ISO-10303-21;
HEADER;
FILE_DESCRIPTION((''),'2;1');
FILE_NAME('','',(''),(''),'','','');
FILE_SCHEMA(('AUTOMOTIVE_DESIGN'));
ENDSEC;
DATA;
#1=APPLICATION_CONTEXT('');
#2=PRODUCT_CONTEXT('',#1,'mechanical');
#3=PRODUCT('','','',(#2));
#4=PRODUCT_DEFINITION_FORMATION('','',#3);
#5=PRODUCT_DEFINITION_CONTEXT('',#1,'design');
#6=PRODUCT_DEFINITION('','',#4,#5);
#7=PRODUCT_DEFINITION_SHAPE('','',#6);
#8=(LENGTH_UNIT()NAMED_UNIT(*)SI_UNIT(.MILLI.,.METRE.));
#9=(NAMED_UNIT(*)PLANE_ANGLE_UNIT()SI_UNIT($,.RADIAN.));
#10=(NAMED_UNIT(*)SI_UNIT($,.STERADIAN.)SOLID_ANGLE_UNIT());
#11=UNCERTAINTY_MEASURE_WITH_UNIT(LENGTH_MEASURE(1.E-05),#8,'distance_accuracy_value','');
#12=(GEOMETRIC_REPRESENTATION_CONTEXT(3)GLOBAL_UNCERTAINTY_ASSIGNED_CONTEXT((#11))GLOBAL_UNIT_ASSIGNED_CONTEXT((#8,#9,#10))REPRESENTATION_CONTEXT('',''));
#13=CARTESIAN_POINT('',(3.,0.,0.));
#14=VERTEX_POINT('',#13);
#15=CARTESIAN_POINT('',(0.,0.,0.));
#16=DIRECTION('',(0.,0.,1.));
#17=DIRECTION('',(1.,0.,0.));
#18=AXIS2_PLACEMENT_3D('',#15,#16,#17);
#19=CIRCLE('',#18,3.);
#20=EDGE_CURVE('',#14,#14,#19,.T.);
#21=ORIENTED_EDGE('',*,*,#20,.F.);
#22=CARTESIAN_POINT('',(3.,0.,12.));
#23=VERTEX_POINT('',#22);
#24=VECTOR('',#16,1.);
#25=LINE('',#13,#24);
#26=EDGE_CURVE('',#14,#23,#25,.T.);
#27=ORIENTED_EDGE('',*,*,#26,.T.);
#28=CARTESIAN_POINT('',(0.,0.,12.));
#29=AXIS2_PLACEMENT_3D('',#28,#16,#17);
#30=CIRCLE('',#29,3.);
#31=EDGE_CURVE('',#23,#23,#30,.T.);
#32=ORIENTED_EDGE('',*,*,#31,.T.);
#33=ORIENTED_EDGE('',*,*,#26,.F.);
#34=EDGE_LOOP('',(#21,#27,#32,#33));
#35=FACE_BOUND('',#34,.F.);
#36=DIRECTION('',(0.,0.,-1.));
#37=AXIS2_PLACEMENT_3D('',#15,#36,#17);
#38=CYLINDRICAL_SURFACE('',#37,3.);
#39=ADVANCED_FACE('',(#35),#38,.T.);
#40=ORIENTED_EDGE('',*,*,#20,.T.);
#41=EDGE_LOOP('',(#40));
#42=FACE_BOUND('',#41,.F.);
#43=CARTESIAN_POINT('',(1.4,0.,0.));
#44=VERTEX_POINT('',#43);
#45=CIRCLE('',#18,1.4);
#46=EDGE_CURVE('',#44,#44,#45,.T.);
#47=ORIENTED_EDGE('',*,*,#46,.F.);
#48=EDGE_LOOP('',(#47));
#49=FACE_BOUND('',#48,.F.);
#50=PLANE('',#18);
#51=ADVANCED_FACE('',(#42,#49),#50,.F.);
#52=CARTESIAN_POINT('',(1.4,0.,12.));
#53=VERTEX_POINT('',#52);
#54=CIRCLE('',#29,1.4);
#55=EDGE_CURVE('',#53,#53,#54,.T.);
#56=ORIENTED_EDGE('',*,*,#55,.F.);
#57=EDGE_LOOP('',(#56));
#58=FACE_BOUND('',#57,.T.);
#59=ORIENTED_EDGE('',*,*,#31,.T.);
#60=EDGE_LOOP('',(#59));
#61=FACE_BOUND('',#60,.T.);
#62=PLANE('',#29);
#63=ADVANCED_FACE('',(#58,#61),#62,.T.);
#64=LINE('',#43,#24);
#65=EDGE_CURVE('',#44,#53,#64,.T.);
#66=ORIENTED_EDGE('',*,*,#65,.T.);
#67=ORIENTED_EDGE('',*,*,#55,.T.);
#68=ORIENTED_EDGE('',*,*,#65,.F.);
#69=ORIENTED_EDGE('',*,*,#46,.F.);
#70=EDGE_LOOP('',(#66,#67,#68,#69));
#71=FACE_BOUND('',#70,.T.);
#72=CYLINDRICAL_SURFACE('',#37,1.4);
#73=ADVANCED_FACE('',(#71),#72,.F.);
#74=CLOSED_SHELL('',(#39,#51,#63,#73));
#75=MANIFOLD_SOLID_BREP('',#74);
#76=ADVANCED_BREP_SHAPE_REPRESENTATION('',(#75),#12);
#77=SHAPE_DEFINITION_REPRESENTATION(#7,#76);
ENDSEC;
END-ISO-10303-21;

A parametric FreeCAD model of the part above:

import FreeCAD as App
import Part
import Sketcher
from FreeCAD import Vector

doc = App.newDocument("Part")
body = doc.addObject("PartDesign::Body", "Body")

# Sketch on XY plane
sketch1 = body.newObject("Sketcher::SketchObject", "Sketch")
sketch1.AttachmentSupport = (doc.getObject("XY_Plane"), [""])
sketch1.MapMode = "FlatFace"
sketch1.addGeometry(Part.Circle(Vector(0, 0, 0), Vector(0, 0, 1), 3), False)
sketch1.addGeometry(Part.Circle(Vector(0, 0, 0), Vector(0, 0, 1), 1.4), False)
sketch1.addConstraint(Sketcher.Constraint("Coincident", 0, 3, -1, 1))
sketch1.addConstraint(Sketcher.Constraint("Coincident", 1, 3, -1, 1))
sketch1.addConstraint(Sketcher.Constraint("Diameter", 0, 6.0))
sketch1.addConstraint(Sketcher.Constraint("Diameter", 1, 2.8))
pad1 = body.newObject("PartDesign::Pad", "Pad")
pad1.Profile = sketch1
pad1.Length = 12

doc.recompute()
